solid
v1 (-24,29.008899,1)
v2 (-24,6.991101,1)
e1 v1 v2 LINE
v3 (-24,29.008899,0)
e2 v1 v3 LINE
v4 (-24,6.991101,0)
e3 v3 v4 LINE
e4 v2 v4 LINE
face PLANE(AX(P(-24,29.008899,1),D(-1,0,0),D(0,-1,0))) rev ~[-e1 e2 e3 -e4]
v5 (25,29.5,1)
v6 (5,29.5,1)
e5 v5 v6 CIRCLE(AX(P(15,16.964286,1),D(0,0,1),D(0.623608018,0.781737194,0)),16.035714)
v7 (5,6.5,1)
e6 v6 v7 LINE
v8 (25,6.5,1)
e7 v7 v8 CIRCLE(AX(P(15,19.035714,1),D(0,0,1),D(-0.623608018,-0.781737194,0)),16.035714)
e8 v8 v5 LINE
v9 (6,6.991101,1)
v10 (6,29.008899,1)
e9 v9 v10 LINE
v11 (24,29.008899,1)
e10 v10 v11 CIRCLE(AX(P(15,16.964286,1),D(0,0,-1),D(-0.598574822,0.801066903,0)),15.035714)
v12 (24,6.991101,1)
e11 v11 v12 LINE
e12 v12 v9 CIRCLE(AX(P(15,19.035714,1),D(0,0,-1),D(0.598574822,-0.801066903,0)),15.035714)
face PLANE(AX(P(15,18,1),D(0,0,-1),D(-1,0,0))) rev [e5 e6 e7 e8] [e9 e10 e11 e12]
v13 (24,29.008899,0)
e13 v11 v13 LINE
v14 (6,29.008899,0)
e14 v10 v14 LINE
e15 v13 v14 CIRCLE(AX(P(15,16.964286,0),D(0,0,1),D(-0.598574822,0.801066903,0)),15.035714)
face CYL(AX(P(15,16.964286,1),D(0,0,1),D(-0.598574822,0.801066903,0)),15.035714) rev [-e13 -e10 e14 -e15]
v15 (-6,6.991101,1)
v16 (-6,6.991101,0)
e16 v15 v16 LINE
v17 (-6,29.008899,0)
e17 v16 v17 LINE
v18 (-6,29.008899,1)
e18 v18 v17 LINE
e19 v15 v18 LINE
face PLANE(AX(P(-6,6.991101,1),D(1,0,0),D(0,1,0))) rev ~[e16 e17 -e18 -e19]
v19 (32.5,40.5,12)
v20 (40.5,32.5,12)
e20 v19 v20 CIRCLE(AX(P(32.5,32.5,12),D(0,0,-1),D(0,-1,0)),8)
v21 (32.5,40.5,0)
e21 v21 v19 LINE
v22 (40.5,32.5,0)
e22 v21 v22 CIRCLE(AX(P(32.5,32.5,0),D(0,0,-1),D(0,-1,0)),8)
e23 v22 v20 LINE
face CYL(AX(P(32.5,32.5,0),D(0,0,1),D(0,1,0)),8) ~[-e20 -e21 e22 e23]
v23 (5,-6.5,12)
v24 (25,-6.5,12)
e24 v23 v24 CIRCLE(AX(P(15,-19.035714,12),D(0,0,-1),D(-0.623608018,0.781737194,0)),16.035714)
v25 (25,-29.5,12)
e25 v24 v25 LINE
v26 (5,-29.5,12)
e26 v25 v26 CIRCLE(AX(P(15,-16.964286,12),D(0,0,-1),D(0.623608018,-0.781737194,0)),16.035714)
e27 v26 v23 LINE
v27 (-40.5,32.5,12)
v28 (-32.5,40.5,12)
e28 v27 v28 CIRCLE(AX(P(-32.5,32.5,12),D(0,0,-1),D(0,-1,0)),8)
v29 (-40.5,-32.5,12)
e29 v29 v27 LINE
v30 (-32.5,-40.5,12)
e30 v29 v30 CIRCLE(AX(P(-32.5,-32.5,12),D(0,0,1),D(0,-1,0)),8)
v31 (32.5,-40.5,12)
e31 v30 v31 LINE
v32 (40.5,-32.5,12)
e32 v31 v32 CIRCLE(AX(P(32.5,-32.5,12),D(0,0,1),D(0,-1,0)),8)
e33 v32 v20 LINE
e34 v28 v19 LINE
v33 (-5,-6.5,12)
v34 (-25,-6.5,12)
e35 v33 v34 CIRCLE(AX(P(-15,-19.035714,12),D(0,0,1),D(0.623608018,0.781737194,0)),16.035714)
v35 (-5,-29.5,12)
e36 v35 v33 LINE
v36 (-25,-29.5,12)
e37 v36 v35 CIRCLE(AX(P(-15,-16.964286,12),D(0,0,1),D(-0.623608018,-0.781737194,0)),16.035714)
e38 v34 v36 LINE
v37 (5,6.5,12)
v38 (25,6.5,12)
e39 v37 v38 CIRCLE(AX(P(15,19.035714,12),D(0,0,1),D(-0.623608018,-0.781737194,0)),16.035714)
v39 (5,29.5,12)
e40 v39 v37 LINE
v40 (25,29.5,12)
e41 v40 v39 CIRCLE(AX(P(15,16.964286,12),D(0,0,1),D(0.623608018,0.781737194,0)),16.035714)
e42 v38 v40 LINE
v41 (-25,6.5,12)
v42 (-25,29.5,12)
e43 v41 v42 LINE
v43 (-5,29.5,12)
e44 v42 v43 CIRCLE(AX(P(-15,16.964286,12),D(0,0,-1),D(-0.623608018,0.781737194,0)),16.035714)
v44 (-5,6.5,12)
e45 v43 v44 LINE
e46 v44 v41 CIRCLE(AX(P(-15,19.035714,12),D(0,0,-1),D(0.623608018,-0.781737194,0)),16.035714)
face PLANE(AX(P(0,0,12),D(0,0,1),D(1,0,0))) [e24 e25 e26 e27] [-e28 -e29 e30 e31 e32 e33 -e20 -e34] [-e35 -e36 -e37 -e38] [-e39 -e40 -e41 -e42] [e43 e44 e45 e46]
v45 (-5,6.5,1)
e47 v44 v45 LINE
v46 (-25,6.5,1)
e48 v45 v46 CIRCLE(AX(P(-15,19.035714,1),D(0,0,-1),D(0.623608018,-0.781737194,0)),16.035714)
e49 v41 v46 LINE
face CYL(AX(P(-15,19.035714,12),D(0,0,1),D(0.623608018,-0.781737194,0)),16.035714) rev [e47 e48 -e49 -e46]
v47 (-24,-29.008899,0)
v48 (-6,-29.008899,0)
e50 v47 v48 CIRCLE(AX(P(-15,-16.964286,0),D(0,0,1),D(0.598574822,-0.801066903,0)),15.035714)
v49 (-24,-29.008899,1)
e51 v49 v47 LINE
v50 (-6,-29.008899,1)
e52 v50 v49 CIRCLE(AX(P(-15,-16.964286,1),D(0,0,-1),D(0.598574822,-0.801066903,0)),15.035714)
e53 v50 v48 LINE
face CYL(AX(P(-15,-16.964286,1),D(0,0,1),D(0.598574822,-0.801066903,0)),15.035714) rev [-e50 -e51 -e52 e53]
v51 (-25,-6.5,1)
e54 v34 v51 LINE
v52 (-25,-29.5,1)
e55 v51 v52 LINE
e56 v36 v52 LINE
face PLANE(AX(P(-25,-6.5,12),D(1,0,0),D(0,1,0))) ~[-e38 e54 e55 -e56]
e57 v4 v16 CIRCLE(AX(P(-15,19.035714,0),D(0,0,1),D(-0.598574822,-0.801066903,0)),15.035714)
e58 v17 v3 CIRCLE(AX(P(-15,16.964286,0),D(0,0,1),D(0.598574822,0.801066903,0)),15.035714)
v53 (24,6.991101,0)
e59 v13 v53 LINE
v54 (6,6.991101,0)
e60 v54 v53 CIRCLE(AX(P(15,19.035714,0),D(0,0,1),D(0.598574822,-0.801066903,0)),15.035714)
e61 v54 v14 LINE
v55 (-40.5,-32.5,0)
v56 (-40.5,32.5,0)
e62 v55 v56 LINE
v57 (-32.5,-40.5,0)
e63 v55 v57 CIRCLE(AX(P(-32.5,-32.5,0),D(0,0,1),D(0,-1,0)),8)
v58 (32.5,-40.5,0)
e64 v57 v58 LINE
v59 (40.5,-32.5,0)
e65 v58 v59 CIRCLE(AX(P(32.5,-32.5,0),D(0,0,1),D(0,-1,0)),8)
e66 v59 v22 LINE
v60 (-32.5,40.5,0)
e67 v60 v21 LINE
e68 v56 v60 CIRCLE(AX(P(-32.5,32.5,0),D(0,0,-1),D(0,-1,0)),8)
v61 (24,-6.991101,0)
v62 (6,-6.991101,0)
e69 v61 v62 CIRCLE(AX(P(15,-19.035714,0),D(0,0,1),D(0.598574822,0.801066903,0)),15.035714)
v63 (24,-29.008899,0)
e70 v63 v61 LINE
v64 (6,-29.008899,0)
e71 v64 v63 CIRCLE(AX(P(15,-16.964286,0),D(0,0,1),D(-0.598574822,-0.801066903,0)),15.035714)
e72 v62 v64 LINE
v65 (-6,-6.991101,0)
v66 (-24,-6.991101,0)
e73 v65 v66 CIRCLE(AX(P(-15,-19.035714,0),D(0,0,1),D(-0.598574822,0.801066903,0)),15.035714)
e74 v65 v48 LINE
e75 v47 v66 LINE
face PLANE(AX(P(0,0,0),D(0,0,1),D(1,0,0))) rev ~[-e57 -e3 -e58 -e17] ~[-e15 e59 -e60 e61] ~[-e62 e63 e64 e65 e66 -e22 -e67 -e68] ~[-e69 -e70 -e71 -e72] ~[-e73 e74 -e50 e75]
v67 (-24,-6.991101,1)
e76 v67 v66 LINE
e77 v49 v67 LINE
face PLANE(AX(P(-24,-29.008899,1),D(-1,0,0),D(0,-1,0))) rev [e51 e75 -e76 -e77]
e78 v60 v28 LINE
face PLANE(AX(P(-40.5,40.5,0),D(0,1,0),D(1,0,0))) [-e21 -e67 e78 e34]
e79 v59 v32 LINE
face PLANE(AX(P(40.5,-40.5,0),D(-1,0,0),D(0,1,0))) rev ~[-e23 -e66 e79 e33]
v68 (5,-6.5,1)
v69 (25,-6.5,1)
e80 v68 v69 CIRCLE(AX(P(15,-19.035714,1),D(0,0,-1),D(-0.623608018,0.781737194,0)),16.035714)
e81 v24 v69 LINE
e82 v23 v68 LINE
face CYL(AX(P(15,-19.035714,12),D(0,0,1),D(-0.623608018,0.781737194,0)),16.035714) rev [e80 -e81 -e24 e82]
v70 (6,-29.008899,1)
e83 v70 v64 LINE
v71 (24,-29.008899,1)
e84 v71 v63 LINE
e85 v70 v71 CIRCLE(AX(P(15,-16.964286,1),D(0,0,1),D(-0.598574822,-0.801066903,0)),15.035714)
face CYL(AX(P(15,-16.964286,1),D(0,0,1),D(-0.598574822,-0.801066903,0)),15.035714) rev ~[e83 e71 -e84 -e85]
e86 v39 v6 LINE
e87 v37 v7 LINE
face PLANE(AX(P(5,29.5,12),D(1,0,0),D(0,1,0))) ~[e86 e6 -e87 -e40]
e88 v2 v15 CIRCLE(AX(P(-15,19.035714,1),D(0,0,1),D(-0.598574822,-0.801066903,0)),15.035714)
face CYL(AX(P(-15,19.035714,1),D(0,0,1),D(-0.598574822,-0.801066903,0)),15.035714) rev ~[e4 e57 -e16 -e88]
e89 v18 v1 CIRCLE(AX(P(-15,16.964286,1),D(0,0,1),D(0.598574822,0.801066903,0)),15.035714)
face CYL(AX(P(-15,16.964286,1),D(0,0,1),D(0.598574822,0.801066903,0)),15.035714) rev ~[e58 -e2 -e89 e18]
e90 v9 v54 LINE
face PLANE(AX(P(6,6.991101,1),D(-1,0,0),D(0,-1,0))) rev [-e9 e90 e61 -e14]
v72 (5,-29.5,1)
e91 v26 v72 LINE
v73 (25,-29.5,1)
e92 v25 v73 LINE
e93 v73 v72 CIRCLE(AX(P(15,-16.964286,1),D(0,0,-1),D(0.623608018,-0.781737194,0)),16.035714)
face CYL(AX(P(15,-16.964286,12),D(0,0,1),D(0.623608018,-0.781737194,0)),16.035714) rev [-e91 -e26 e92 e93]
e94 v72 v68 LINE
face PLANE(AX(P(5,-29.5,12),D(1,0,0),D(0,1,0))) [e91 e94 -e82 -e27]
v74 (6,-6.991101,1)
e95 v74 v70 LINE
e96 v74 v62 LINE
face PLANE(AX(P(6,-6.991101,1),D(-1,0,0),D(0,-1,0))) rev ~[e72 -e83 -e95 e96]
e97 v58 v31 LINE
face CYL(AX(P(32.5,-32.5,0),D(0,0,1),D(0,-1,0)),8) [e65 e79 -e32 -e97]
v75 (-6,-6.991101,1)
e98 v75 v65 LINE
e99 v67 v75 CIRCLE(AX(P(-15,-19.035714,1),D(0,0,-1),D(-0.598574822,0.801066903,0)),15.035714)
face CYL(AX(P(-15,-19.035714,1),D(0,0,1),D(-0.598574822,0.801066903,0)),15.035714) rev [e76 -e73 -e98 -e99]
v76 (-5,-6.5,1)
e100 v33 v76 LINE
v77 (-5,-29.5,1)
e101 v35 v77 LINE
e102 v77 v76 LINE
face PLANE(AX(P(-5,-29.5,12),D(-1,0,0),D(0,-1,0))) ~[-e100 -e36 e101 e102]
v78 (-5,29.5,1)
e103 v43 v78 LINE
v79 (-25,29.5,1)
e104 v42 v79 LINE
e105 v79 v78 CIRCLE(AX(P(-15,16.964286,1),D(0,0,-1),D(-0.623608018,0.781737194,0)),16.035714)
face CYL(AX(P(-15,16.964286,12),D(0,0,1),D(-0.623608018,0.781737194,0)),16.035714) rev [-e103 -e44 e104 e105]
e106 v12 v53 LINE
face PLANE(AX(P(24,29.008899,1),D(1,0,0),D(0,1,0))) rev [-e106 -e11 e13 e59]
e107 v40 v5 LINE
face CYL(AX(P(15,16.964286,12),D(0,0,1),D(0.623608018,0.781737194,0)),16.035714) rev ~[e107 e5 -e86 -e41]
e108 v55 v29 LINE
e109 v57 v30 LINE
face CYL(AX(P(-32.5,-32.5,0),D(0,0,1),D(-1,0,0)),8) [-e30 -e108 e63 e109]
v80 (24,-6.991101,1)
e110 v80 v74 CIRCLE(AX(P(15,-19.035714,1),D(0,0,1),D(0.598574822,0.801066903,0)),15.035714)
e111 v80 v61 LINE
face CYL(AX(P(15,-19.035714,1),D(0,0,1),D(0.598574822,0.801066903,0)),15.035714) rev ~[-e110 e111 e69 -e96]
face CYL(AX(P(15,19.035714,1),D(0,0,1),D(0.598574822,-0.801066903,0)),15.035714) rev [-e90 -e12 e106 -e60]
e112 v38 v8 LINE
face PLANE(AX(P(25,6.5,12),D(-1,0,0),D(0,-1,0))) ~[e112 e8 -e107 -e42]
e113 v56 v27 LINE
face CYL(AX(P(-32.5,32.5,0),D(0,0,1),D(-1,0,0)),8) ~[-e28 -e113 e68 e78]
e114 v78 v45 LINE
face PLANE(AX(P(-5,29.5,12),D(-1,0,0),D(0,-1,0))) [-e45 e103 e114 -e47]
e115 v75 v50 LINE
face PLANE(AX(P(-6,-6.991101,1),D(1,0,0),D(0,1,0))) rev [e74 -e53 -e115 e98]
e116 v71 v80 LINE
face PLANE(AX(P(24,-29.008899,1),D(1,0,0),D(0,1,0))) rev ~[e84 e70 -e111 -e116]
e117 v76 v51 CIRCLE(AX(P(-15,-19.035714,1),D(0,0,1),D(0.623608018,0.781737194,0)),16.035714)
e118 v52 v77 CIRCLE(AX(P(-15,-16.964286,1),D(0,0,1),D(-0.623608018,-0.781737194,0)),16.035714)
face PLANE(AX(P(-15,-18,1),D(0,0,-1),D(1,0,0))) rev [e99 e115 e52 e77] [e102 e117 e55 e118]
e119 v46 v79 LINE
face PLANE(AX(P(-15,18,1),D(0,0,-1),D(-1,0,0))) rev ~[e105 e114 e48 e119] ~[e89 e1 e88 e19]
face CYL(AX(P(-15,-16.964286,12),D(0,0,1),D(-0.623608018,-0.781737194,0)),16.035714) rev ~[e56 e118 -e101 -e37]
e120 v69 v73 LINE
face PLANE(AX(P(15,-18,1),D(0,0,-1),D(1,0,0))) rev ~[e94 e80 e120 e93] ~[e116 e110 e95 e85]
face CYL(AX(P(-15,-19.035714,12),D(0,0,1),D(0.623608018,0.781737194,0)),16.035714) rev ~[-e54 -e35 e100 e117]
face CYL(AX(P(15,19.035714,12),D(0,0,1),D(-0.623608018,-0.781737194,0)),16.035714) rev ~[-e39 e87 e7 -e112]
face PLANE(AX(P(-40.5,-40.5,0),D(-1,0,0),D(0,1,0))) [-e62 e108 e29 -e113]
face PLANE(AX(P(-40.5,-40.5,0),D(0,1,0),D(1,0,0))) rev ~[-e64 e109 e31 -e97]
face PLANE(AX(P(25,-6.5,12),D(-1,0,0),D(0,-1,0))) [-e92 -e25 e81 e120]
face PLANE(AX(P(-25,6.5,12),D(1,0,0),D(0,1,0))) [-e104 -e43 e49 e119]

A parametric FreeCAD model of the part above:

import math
import FreeCAD as App
import Part
import Sketcher

V = App.Vector
Q = App.Units.Quantity


def edges_at(feature, points):
    """Names of the edges that pass closest to the given points."""
    edges = feature.Shape.Edges
    near = lambda p: min(range(len(edges)), key=lambda i: edges[i].distToShape(Part.Vertex(*p))[0])
    return sorted({f"Edge{near(p) + 1}" for p in points})


def add_polygon(sketch, points):
    """Adds a closed chain of lines whose ends are joined by coincident constraints."""
    first, n = sketch.GeometryCount, len(points)
    for a, b in zip(points, points[1:] + points[:1]):
        sketch.addGeometry(Part.LineSegment(App.Vector(*a, 0), App.Vector(*b, 0)), False)
    for i in range(n):
        sketch.addConstraint(Sketcher.Constraint("Coincident", first + i, 2, first + (i + 1) % n, 1))

doc = App.newDocument("Part")
params = doc.addObject("Spreadsheet::Sheet", "Params")
for row, (alias, value) in enumerate([
    ("sketch1_width", "81 mm"),
    ("pad1_length", "12 mm"),
    ("sketch2_height", "23 mm"),
    ("pocket1_length", "11 mm"),
    ("sketch4_height", "23 mm"),
    ("pocket3_length", "11 mm"),
    ("fillet_radius", "8 mm"),
], start=1):
    params.set(f"A{row}", alias)
    params.set(f"B{row}", "=" + value)
    params.setAlias(f"B{row}", alias)

body = doc.addObject("PartDesign::Body", "Body")

sketch1 = doc.addObject("Sketcher::SketchObject", "Sketch")
body.addObject(sketch1)
sketch1.AttachmentSupport = (doc.XY_Plane, [""])
sketch1.MapMode = "FlatFace"
add_polygon(sketch1, [(-40, 40), (-40, -40), (40, -40), (40, 40)])
sketch1.addConstraint([
    Sketcher.Constraint("Vertical", 0),
    Sketcher.Constraint("Horizontal", 1),
    Sketcher.Constraint("Vertical", 2),
    Sketcher.Constraint("Horizontal", 3),
    Sketcher.Constraint("Symmetric", 0, 2, 2, 2, -1, 1),
    Sketcher.Constraint("Equal", 3, 0),
    Sketcher.Constraint("DistanceX", 1, 1, 1, 2, Q("81 mm")),
])
sketch1.setExpression("Constraints[10]", "Params.sketch1_width")
pad1 = doc.addObject("PartDesign::Pad", "Pad")
body.addObject(pad1)
pad1.Profile = sketch1
pad1.setExpression("Length", "Params.pad1_length")

sketch2 = doc.addObject("Sketcher::SketchObject", "Sketch001")
body.addObject(sketch2)
sketch2.AttachmentSupport = (doc.XY_Plane, [""])
sketch2.MapMode = "FlatFace"
sketch2.AttachmentOffset = App.Placement(V(0, 0, 12), App.Rotation())
sketch2.addGeometry([
    Part.LineSegment(V(-25, 30, 0), V(-25, 6, 0)),
    Part.ArcOfCircle(Part.Circle(V(-15, 19, 0), V(0, 0, 1), 16), math.radians(-129), math.radians(-51)),
    Part.LineSegment(V(-5, 6, 0), V(-5, 30, 0)),
    Part.ArcOfCircle(Part.Circle(V(-15, 17, 0), V(0, 0, 1), 16), math.radians(51), math.radians(129)),
], False)
sketch2.addConstraint([
    Sketcher.Constraint("Coincident", 0, 2, 1, 1),
    Sketcher.Constraint("Coincident", 1, 2, 2, 1),
    Sketcher.Constraint("Coincident", 2, 2, 3, 1),
    Sketcher.Constraint("Coincident", 3, 2, 0, 1),
    Sketcher.Constraint("Vertical", 0),
    Sketcher.Constraint("Vertical", 2),
    Sketcher.Constraint("Equal", 1, 3),
    Sketcher.Constraint("Horizontal", 0, 2, 1, 2),
    Sketcher.Constraint("Horizontal", 2, 2, 3, 2),
    Sketcher.Constraint("DistanceY", 0, 2, 0, 1, Q("23 mm")),
    Sketcher.Constraint("DistanceX", 1, 3, -1, 1, Q("15 mm")),
    Sketcher.Constraint("DistanceX", 0, 2, -1, 1, Q("25 mm")),
    Sketcher.Constraint("DistanceY", -1, 1, 0, 2, Q("6.5 mm")),
    Sketcher.Constraint("Radius", 1, Q("16.035714 mm")),
])
sketch2.setExpression("Constraints[9]", "Params.sketch2_height")
pocket1 = doc.addObject("PartDesign::Pocket", "Pocket")
body.addObject(pocket1)
pocket1.Profile = sketch2
pocket1.setExpression("Length", "Params.pocket1_length")

sketch3 = doc.addObject("Sketcher::SketchObject", "Sketch002")
body.addObject(sketch3)
sketch3.AttachmentSupport = (doc.XY_Plane, [""])
sketch3.MapMode = "FlatFace"
sketch3.AttachmentOffset = App.Placement(V(0, 0, 1), App.Rotation())
sketch3.addGeometry([
    Part.LineSegment(V(-6, 7, 0), V(-6, 29, 0)),
    Part.ArcOfCircle(Part.Circle(V(-15, 17, 0), V(0, 0, 1), 15), math.radians(53), math.radians(127)),
    Part.LineSegment(V(-24, 29, 0), V(-24, 7, 0)),
    Part.ArcOfCircle(Part.Circle(V(-15, 19, 0), V(0, 0, 1), 15), math.radians(-127), math.radians(-53)),
], False)
sketch3.addConstraint([
    Sketcher.Constraint("Coincident", 0, 2, 1, 1),
    Sketcher.Constraint("Coincident", 1, 2, 2, 1),
    Sketcher.Constraint("Coincident", 2, 2, 3, 1),
    Sketcher.Constraint("Coincident", 3, 2, 0, 1),
    Sketcher.Constraint("Vertical", 0),
    Sketcher.Constraint("Vertical", 2),
    Sketcher.Constraint("Equal", 1, 3),
    Sketcher.Constraint("Horizontal", 0, 2, 1, 2),
    Sketcher.Constraint("Horizontal", 2, 2, 3, 2),
    Sketcher.Constraint("DistanceX", 1, 3, -1, 1, Q("15 mm")),
    Sketcher.Constraint("DistanceX", 0, 2, -1, 1, Q("6 mm")),
    Sketcher.Constraint("Radius", 1, Q("15.035714 mm")),
    Sketcher.Constraint("DistanceY", -1, 1, 0, 2, Q("29.008899 mm")),
    Sketcher.Constraint("DistanceY", -1, 1, 2, 2, Q("6.991101 mm")),
])
pocket2 = doc.addObject("PartDesign::Pocket", "Pocket001")
body.addObject(pocket2)
pocket2.Profile = sketch3
pocket2.Type = "ThroughAll"
doc.recompute()

mirrored = doc.addObject("PartDesign::Mirrored", "Mirrored")
body.addObject(mirrored)
mirrored.Originals = [pocket1, pocket2]
mirrored.MirrorPlane = (doc.XZ_Plane, [""])
body.Tip = mirrored
doc.recompute()

mirrored2 = doc.addObject("PartDesign::Mirrored", "Mirrored001")
body.addObject(mirrored2)
mirrored2.Originals = [pocket1, pocket2]
mirrored2.MirrorPlane = (doc.YZ_Plane, [""])
body.Tip = mirrored2

sketch4 = doc.addObject("Sketcher::SketchObject", "Sketch003")
body.addObject(sketch4)
sketch4.AttachmentSupport = (doc.XY_Plane, [""])
sketch4.MapMode = "FlatFace"
sketch4.AttachmentOffset = App.Placement(V(0, 0, 12), App.Rotation())
sketch4.addGeometry([
    Part.LineSegment(V(25, -30, 0), V(25, -6, 0)),
    Part.ArcOfCircle(Part.Circle(V(15, -19, 0), V(0, 0, 1), 16), math.radians(51), math.radians(129)),
    Part.LineSegment(V(5, -6, 0), V(5, -30, 0)),
    Part.ArcOfCircle(Part.Circle(V(15, -17, 0), V(0, 0, 1), 16), math.radians(-129), math.radians(-51)),
], False)
sketch4.addConstraint([
    Sketcher.Constraint("Coincident", 0, 2, 1, 1),
    Sketcher.Constraint("Coincident", 1, 2, 2, 1),
    Sketcher.Constraint("Coincident", 2, 2, 3, 1),
    Sketcher.Constraint("Coincident", 3, 2, 0, 1),
    Sketcher.Constraint("Vertical", 0),
    Sketcher.Constraint("Vertical", 2),
    Sketcher.Constraint("Equal", 1, 3),
    Sketcher.Constraint("Horizontal", 0, 2, 1, 2),
    Sketcher.Constraint("Horizontal", 2, 2, 3, 2),
    Sketcher.Constraint("DistanceY", 0, 1, 0, 2, Q("23 mm")),
    Sketcher.Constraint("DistanceX", -1, 1, 1, 3, Q("15 mm")),
    Sketcher.Constraint("DistanceX", -1, 1, 0, 2, Q("25 mm")),
    Sketcher.Constraint("DistanceY", 0, 2, -1, 1, Q("6.5 mm")),
    Sketcher.Constraint("Radius", 1, Q("16.035714 mm")),
])
sketch4.setExpression("Constraints[9]", "Params.sketch4_height")
pocket3 = doc.addObject("PartDesign::Pocket", "Pocket002")
body.addObject(pocket3)
pocket3.Profile = sketch4
pocket3.setExpression("Length", "Params.pocket3_length")

sketch5 = doc.addObject("Sketcher::SketchObject", "Sketch004")
body.addObject(sketch5)
sketch5.AttachmentSupport = (doc.XY_Plane, [""])
sketch5.MapMode = "FlatFace"
sketch5.AttachmentOffset = App.Placement(V(0, 0, 1), App.Rotation())
sketch5.addGeometry([
    Part.LineSegment(V(6, -7, 0), V(6, -29, 0)),
    Part.ArcOfCircle(Part.Circle(V(15, -17, 0), V(0, 0, 1), 15), math.radians(-127), math.radians(-53)),
    Part.LineSegment(V(24, -29, 0), V(24, -7, 0)),
    Part.ArcOfCircle(Part.Circle(V(15, -19, 0), V(0, 0, 1), 15), math.radians(53), math.radians(127)),
], False)
sketch5.addConstraint([
    Sketcher.Constraint("Coincident", 0, 2, 1, 1),
    Sketcher.Constraint("Coincident", 1, 2, 2, 1),
    Sketcher.Constraint("Coincident", 2, 2, 3, 1),
    Sketcher.Constraint("Coincident", 3, 2, 0, 1),
    Sketcher.Constraint("Vertical", 0),
    Sketcher.Constraint("Vertical", 2),
    Sketcher.Constraint("Equal", 1, 3),
    Sketcher.Constraint("Horizontal", 0, 2, 1, 2),
    Sketcher.Constraint("Horizontal", 2, 2, 3, 2),
    Sketcher.Constraint("DistanceX", -1, 1, 1, 3, Q("15 mm")),
    Sketcher.Constraint("DistanceX", -1, 1, 0, 2, Q("6 mm")),
    Sketcher.Constraint("Radius", 1, Q("15.035714 mm")),
    Sketcher.Constraint("DistanceY", 0, 2, -1, 1, Q("29.008899 mm")),
    Sketcher.Constraint("DistanceY", 2, 2, -1, 1, Q("6.991101 mm")),
])
pocket4 = doc.addObject("PartDesign::Pocket", "Pocket003")
body.addObject(pocket4)
pocket4.Profile = sketch5
pocket4.Type = "ThroughAll"
doc.recompute()

fillet = doc.addObject("PartDesign::Fillet", "Fillet")
body.addObject(fillet)
fillet.Base = (pocket4, edges_at(pocket4, [
    (40.5, -40.5, 6),
    (-40.5, -40.5, 6),
    (-40.5, 40.5, 6),
    (40.5, 40.5, 6),
]))
fillet.setExpression("Radius", "Params.fillet_radius")

doc.recompute()
